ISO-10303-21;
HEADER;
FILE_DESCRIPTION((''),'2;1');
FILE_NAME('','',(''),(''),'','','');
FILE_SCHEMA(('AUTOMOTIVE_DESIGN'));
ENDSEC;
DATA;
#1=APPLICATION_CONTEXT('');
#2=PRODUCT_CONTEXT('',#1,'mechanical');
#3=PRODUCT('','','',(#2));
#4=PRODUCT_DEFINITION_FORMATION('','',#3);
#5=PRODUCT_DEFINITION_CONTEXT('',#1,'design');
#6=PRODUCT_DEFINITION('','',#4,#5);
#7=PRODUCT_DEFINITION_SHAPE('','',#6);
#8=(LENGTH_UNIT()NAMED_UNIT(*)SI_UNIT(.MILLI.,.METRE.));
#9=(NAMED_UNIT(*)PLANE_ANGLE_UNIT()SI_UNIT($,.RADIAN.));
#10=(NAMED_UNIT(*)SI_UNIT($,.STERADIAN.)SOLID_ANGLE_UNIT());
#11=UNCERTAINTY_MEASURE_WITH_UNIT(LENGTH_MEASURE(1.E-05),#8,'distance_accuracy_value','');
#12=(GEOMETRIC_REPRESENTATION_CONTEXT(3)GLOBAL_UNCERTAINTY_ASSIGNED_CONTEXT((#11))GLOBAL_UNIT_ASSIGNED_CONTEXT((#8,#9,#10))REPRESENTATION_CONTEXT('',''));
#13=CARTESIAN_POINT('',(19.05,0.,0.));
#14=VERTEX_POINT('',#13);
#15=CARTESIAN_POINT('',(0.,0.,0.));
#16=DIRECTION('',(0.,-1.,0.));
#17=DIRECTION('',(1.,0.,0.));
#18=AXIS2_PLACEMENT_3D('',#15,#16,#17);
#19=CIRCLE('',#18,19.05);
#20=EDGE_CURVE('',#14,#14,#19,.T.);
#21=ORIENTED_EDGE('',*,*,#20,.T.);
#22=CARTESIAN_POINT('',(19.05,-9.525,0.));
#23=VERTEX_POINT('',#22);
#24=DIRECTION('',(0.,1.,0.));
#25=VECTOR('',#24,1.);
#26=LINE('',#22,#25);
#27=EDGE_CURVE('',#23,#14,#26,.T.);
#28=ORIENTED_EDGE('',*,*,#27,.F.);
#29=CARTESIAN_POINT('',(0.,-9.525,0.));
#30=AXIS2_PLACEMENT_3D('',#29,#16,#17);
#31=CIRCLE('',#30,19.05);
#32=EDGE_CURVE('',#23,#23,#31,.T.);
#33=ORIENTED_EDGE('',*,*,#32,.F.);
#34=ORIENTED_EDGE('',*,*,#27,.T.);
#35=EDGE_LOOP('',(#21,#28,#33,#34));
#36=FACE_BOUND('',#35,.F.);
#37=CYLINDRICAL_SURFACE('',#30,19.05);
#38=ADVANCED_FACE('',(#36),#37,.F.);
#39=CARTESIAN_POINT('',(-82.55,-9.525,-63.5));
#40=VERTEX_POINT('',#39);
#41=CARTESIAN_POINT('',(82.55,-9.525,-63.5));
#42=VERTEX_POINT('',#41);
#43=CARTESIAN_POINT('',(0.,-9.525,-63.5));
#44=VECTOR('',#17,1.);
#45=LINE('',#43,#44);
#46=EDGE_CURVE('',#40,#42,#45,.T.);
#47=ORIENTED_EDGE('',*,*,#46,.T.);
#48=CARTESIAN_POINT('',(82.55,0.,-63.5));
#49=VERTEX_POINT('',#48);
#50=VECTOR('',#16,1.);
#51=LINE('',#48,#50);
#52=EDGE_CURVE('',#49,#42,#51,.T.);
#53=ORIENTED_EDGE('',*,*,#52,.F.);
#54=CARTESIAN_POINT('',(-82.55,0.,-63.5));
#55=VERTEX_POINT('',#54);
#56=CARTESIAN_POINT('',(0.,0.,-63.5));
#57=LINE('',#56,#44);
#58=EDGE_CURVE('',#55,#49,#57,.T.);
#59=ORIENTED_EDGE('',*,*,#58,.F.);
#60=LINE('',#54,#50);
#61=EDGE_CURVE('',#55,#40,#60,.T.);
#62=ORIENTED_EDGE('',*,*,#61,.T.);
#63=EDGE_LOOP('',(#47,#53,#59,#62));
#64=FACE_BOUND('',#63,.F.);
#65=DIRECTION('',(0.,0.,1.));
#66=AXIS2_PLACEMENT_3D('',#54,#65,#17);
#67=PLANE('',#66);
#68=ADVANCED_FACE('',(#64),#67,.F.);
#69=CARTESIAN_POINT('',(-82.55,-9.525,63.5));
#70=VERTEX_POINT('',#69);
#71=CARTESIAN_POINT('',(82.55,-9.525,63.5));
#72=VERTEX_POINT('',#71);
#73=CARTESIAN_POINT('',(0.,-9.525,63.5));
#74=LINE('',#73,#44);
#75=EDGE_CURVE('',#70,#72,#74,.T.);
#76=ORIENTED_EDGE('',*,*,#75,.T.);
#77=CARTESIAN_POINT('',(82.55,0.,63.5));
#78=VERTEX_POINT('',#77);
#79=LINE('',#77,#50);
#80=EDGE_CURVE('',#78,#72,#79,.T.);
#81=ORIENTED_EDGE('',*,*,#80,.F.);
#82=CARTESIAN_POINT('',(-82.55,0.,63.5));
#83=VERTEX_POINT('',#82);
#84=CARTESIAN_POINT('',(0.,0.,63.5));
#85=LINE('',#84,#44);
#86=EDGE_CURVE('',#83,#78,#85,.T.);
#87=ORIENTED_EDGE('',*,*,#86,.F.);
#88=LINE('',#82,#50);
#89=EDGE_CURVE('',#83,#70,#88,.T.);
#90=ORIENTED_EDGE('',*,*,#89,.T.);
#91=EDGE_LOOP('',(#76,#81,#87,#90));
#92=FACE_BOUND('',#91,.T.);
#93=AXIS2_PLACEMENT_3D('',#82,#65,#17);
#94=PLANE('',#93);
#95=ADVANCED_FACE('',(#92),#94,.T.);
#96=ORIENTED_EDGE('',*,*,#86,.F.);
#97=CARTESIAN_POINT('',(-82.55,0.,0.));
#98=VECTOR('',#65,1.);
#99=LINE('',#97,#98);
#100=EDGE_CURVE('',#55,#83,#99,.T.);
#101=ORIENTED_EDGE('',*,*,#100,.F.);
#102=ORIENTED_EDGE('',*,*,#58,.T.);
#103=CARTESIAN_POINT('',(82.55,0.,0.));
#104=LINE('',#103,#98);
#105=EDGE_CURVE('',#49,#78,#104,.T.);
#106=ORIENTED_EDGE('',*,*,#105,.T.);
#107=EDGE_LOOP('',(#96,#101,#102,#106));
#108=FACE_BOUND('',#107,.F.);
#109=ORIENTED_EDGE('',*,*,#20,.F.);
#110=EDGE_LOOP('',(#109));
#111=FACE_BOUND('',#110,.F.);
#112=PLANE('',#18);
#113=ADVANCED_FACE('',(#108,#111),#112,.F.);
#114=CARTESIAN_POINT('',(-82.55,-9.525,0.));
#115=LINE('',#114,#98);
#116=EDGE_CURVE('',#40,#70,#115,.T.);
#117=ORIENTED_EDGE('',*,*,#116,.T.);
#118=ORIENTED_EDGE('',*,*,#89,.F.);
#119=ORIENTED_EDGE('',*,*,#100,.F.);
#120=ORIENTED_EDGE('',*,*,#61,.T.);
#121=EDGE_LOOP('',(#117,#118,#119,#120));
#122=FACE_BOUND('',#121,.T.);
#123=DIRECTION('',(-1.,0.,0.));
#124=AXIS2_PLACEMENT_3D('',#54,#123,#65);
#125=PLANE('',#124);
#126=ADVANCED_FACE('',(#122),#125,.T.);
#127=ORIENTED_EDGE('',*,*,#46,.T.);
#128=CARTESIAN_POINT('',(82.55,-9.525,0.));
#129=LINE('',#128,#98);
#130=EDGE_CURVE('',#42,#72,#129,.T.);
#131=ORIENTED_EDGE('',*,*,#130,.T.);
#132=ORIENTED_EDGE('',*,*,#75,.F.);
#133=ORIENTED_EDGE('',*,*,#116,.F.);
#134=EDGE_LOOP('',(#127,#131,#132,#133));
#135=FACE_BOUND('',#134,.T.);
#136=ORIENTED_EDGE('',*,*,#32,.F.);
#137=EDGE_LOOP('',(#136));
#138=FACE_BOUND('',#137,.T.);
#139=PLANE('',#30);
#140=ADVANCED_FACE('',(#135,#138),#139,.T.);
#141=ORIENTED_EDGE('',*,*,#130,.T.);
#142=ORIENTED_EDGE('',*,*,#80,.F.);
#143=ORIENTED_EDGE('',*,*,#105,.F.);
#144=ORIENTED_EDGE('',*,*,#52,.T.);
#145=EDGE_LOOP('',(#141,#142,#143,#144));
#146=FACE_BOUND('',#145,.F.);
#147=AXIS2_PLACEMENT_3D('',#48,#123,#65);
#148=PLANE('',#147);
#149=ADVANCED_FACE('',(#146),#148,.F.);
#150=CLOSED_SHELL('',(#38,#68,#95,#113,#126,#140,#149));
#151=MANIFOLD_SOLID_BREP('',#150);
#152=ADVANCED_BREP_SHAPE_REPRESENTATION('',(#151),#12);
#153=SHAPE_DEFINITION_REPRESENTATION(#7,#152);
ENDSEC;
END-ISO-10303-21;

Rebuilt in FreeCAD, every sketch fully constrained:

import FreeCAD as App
import Part
import Sketcher

V = App.Vector
Q = App.Units.Quantity


def add_polygon(sketch, points):
    """Adds a closed chain of lines whose ends are joined by coincident constraints."""
    first, n = sketch.GeometryCount, len(points)
    for a, b in zip(points, points[1:] + points[:1]):
        sketch.addGeometry(Part.LineSegment(App.Vector(*a, 0), App.Vector(*b, 0)), False)
    for i in range(n):
        sketch.addConstraint(Sketcher.Constraint("Coincident", first + i, 2, first + (i + 1) % n, 1))

doc = App.newDocument("Part")
params = doc.addObject("Spreadsheet::Sheet", "Params")
for row, (alias, value) in enumerate([
    ("sketch1_height", "5 in"),
    ("sketch1_width", "6.5 in"),
    ("pad1_length", "0.375 in"),
    ("sketch2_diameter", "1.5 in"),
], start=1):
    params.set(f"A{row}", alias)
    params.set(f"B{row}", "=" + value)
    params.setAlias(f"B{row}", alias)

body = doc.addObject("PartDesign::Body", "Body")

sketch1 = body.newObject("Sketcher::SketchObject", "Sketch")
sketch1.AttachmentSupport = (doc.getObject("XZ_Plane"), [""])
sketch1.MapMode = "FlatFace"
add_polygon(sketch1, [(-83, 64), (-83, -64), (83, -64), (83, 64)])
sketch1.addConstraint(Sketcher.Constraint("Vertical", 0))
sketch1.addConstraint(Sketcher.Constraint("Horizontal", 1))
sketch1.addConstraint(Sketcher.Constraint("Vertical", 2))
sketch1.addConstraint(Sketcher.Constraint("Horizontal", 3))
sketch1.addConstraint(Sketcher.Constraint("Symmetric", 0, 2, 2, 2, -1, 1))
sketch1.addConstraint(Sketcher.Constraint("DistanceY", 0, 2, 0, 1, Q("5 in")))
sketch1.addConstraint(Sketcher.Constraint("DistanceX", 1, 1, 1, 2, Q("6.5 in")))
sketch1.setExpression("Constraints[9]", "Params.sketch1_height")
sketch1.setExpression("Constraints[10]", "Params.sketch1_width")
pad1 = body.newObject("PartDesign::Pad", "Pad")
pad1.Profile = sketch1
pad1.setExpression("Length", "Params.pad1_length")

sketch2 = body.newObject("Sketcher::SketchObject", "Sketch001")
sketch2.AttachmentSupport = (doc.getObject("XZ_Plane"), [""])
sketch2.MapMode = "FlatFace"
sketch2.AttachmentOffset = App.Placement(V(0, 0, 0.375 * 25.4), App.Rotation())
sketch2.addGeometry(Part.Circle(V(0, 0, 0), V(0, 0, 1), 19), False)
sketch2.addConstraint(Sketcher.Constraint("Coincident", 0, 3, -1, 1))
sketch2.addConstraint(Sketcher.Constraint("Diameter", 0, Q("1.5 in")))
sketch2.setExpression("Constraints[1]", "Params.sketch2_diameter")
pocket1 = body.newObject("PartDesign::Pocket", "Pocket")
pocket1.Profile = sketch2
pocket1.Type = "ThroughAll"

doc.recompute()
